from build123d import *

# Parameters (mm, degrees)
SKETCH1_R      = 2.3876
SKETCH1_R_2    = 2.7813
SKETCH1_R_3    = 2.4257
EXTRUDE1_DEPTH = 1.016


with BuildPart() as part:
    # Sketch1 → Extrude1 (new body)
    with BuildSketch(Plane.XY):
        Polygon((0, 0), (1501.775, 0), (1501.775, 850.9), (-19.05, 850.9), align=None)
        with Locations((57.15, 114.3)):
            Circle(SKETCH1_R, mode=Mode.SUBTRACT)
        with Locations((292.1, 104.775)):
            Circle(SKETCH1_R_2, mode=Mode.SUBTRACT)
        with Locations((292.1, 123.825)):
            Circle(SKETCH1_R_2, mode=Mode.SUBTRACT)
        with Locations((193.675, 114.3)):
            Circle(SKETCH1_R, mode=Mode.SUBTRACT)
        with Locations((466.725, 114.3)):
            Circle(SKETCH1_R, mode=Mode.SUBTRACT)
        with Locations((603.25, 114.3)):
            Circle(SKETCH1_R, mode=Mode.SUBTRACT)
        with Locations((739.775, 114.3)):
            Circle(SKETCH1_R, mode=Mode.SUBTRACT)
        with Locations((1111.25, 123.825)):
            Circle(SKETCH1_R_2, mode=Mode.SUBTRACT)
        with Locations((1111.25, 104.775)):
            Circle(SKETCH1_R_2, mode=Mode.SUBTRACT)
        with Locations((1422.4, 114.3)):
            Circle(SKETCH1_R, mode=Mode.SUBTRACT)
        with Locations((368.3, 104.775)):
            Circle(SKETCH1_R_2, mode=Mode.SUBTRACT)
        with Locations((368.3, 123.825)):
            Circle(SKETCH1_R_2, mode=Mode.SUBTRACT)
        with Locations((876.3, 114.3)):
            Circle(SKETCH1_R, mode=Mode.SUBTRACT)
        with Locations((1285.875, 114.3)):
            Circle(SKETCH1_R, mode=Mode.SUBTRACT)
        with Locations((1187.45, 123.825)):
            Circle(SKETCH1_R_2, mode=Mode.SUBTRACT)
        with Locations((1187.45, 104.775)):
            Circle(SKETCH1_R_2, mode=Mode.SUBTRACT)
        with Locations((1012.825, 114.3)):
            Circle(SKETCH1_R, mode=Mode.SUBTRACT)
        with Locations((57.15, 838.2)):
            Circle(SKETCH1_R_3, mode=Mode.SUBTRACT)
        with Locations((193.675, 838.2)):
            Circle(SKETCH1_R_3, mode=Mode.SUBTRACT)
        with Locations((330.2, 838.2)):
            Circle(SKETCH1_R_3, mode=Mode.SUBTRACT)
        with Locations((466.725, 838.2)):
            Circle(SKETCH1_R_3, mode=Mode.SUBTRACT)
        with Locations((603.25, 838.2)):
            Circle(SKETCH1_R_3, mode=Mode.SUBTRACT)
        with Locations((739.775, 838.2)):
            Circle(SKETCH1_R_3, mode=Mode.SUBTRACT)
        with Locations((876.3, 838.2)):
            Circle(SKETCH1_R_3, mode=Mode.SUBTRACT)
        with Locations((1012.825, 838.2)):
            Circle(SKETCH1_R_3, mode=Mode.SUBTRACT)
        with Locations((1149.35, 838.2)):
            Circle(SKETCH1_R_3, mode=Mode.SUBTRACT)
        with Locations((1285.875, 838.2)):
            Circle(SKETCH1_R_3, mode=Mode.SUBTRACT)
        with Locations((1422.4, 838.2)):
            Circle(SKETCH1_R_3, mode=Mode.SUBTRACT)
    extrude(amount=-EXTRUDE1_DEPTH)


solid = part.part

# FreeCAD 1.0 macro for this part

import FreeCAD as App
import Part
import Sketcher
from FreeCAD import Vector
Q = App.Units.Quantity

doc = App.newDocument("Part")
body = doc.addObject("PartDesign::Body", "Body")

sketch1 = body.newObject("Sketcher::SketchObject", "Sketch")
sketch1.AttachmentSupport = (doc.getObject("XY_Plane"), [""])
sketch1.MapMode = "FlatFace"
sketch1.addGeometry([
    Part.LineSegment(Vector(0, 0, 0), Vector(1501.775, 0, 0)),
    Part.LineSegment(Vector(1501.775, 0, 0), Vector(1501.775, 850.9, 0)),
    Part.LineSegment(Vector(1501.775, 850.9, 0), Vector(-19.05, 850.9, 0)),
    Part.LineSegment(Vector(-19.05, 850.9, 0), Vector(0, 0, 0)),
    Part.Circle(Vector(57.15, 114.3, 0), Vector(0, 0, 1), 2.3876),
    Part.Circle(Vector(193.675, 114.3, 0), Vector(0, 0, 1), 2.3876),
    Part.Circle(Vector(292.1, 104.775, 0), Vector(0, 0, 1), 2.7813),
    Part.Circle(Vector(292.1, 123.825, 0), Vector(0, 0, 1), 2.7813),
    Part.Circle(Vector(368.3, 104.775, 0), Vector(0, 0, 1), 2.7813),
    Part.Circle(Vector(368.3, 123.825, 0), Vector(0, 0, 1), 2.7813),
    Part.Circle(Vector(466.725, 114.3, 0), Vector(0, 0, 1), 2.3876),
    Part.Circle(Vector(603.25, 114.3, 0), Vector(0, 0, 1), 2.3876),
    Part.Circle(Vector(739.775, 114.3, 0), Vector(0, 0, 1), 2.3876),
    Part.Circle(Vector(876.3, 114.3, 0), Vector(0, 0, 1), 2.3876),
    Part.Circle(Vector(1012.825, 114.3, 0), Vector(0, 0, 1), 2.3876),
    Part.Circle(Vector(1111.25, 104.775, 0), Vector(0, 0, 1), 2.7813),
    Part.Circle(Vector(1111.25, 123.825, 0), Vector(0, 0, 1), 2.7813),
    Part.Circle(Vector(1187.45, 104.775, 0), Vector(0, 0, 1), 2.7813),
    Part.Circle(Vector(1187.45, 123.825, 0), Vector(0, 0, 1), 2.7813),
    Part.Circle(Vector(1285.875, 114.3, 0), Vector(0, 0, 1), 2.3876),
    Part.Circle(Vector(1422.4, 114.3, 0), Vector(0, 0, 1), 2.3876),
    Part.Circle(Vector(57.15, 838.2, 0), Vector(0, 0, 1), 2.4257),
    Part.Circle(Vector(193.675, 838.2, 0), Vector(0, 0, 1), 2.4257),
    Part.Circle(Vector(330.2, 838.2, 0), Vector(0, 0, 1), 2.4257),
    Part.Circle(Vector(466.725, 838.2, 0), Vector(0, 0, 1), 2.4257),
    Part.Circle(Vector(603.25, 838.2, 0), Vector(0, 0, 1), 2.4257),
    Part.Circle(Vector(739.775, 838.2, 0), Vector(0, 0, 1), 2.4257),
    Part.Circle(Vector(876.3, 838.2, 0), Vector(0, 0, 1), 2.4257),
    Part.Circle(Vector(1012.825, 838.2, 0), Vector(0, 0, 1), 2.4257),
    Part.Circle(Vector(1149.35, 838.2, 0), Vector(0, 0, 1), 2.4257),
    Part.Circle(Vector(1285.875, 838.2, 0), Vector(0, 0, 1), 2.4257),
    Part.Circle(Vector(1422.4, 838.2, 0), Vector(0, 0, 1), 2.4257),
], False)
sketch1.addConstraint([
    Sketcher.Constraint("Coincident", 0, 2, 1, 1),
    Sketcher.Constraint("Coincident", 1, 2, 2, 1),
    Sketcher.Constraint("Coincident", 2, 2, 3, 1),
    Sketcher.Constraint("Coincident", 3, 2, 0, 1),
    Sketcher.Constraint("Horizontal", 0),
    Sketcher.Constraint("Vertical", 1),
    Sketcher.Constraint("Horizontal", 2),
    Sketcher.Constraint("Coincident", 3, 2, -1, 1),
    Sketcher.Constraint("Equal", 4, 5),
    Sketcher.Constraint("Equal", 6, 7),
    Sketcher.Constraint("Equal", 7, 8),
    Sketcher.Constraint("Equal", 8, 9),
    Sketcher.Constraint("Equal", 5, 10),
    Sketcher.Constraint("Equal", 10, 11),
    Sketcher.Constraint("Equal", 11, 12),
    Sketcher.Constraint("Equal", 12, 13),
    Sketcher.Constraint("Equal", 13, 14),
    Sketcher.Constraint("Equal", 9, 15),
    Sketcher.Constraint("Equal", 15, 16),
    Sketcher.Constraint("Equal", 16, 17),
    Sketcher.Constraint("Equal", 17, 18),
    Sketcher.Constraint("Equal", 14, 19),
    Sketcher.Constraint("Equal", 19, 20),
    Sketcher.Constraint("Equal", 21, 22),
    Sketcher.Constraint("Equal", 22, 23),
    Sketcher.Constraint("Equal", 23, 24),
    Sketcher.Constraint("Equal", 24, 25),
    Sketcher.Constraint("Equal", 25, 26),
    Sketcher.Constraint("Equal", 26, 27),
    Sketcher.Constraint("Equal", 27, 28),
    Sketcher.Constraint("Equal", 28, 29),
    Sketcher.Constraint("Equal", 29, 30),
    Sketcher.Constraint("Equal", 30, 31),
    Sketcher.Constraint("Horizontal", 4, 3, 5, 3),
    Sketcher.Constraint("Horizontal", 6, 3, 8, 3),
    Sketcher.Constraint("Horizontal", 7, 3, 9, 3),
    Sketcher.Constraint("Horizontal", 5, 3, 10, 3),
    Sketcher.Constraint("Horizontal", 10, 3, 11, 3),
    Sketcher.Constraint("Horizontal", 11, 3, 12, 3),
    Sketcher.Constraint("Horizontal", 12, 3, 13, 3),
    Sketcher.Constraint("Horizontal", 13, 3, 14, 3),
    Sketcher.Constraint("Horizontal", 8, 3, 15, 3),
    Sketcher.Constraint("Horizontal", 9, 3, 16, 3),
    Sketcher.Constraint("Horizontal", 15, 3, 17, 3),
    Sketcher.Constraint("Horizontal", 16, 3, 18, 3),
    Sketcher.Constraint("Horizontal", 14, 3, 19, 3),
    Sketcher.Constraint("Horizontal", 19, 3, 20, 3),
    Sketcher.Constraint("Horizontal", 21, 3, 22, 3),
    Sketcher.Constraint("Horizontal", 22, 3, 23, 3),
    Sketcher.Constraint("Horizontal", 23, 3, 24, 3),
    Sketcher.Constraint("Horizontal", 24, 3, 25, 3),
    Sketcher.Constraint("Horizontal", 25, 3, 26, 3),
    Sketcher.Constraint("Horizontal", 26, 3, 27, 3),
    Sketcher.Constraint("Horizontal", 27, 3, 28, 3),
    Sketcher.Constraint("Horizontal", 28, 3, 29, 3),
    Sketcher.Constraint("Horizontal", 29, 3, 30, 3),
    Sketcher.Constraint("Horizontal", 30, 3, 31, 3),
    Sketcher.Constraint("Vertical", 6, 3, 7, 3),
    Sketcher.Constraint("Vertical", 8, 3, 9, 3),
    Sketcher.Constraint("Vertical", 15, 3, 16, 3),
    Sketcher.Constraint("Vertical", 17, 3, 18, 3),
    Sketcher.Constraint("Vertical", 4, 3, 21, 3),
    Sketcher.Constraint("Vertical", 5, 3, 22, 3),
    Sketcher.Constraint("Vertical", 10, 3, 24, 3),
    Sketcher.Constraint("Vertical", 11, 3, 25, 3),
    Sketcher.Constraint("Vertical", 12, 3, 26, 3),
    Sketcher.Constraint("Vertical", 13, 3, 27, 3),
    Sketcher.Constraint("Vertical", 14, 3, 28, 3),
    Sketcher.Constraint("Vertical", 19, 3, 30, 3),
    Sketcher.Constraint("Vertical", 20, 3, 31, 3),
    Sketcher.Constraint("Diameter", 4, Q("0.188 in")),
    Sketcher.Constraint("Diameter", 6, Q("0.219 in")),
    Sketcher.Constraint("Diameter", 21, Q("0.191 in")),
    Sketcher.Constraint("DistanceY", 1, 1, 1, 2, Q("33.5 in")),
    Sketcher.Constraint("DistanceX", -1, 1, 20, 3, Q("56 in")),
    Sketcher.Constraint("DistanceY", -1, 1, 21, 3, Q("33 in")),
    Sketcher.Constraint("DistanceX", -1, 1, 23, 3, Q("13 in")),
    Sketcher.Constraint("DistanceX", 6, 3, 8, 3, Q("3 in")),
    Sketcher.Constraint("DistanceX", 8, 3, 13, 3, Q("20 in")),
    Sketcher.Constraint("DistanceX", 11, 3, 15, 3, Q("20 in")),
    Sketcher.Constraint("DistanceX", 15, 3, 17, 3, Q("3 in")),
    Sketcher.Constraint("DistanceX", 2, 2, 21, 3, Q("3 in")),
    Sketcher.Constraint("DistanceY", -1, 1, 4, 3, Q("4.5 in")),
    Sketcher.Constraint("DistanceX", -1, 1, 6, 3, Q("11.5 in")),
    Sketcher.Constraint("DistanceX", 10, 3, 14, 3, Q("21.5 in")),
    Sketcher.Constraint("DistanceX", 21, 3, 25, 3, Q("21.5 in")),
    Sketcher.Constraint("DistanceX", 22, 3, 26, 3, Q("21.5 in")),
    Sketcher.Constraint("DistanceX", 25, 3, 29, 3, Q("21.5 in")),
    Sketcher.Constraint("DistanceX", 26, 3, 30, 3, Q("21.5 in")),
    Sketcher.Constraint("DistanceX", 19, 3, 0, 2, Q("8.5 in")),
    Sketcher.Constraint("DistanceX", 0, 1, 0, 2, Q("59.125 in")),
    Sketcher.Constraint("DistanceX", 2, 2, 2, 1, Q("59.875 in")),
    Sketcher.Constraint("DistanceY", 6, 3, 7, 3, Q("0.75 in")),
    Sketcher.Constraint("DistanceX", 5, 3, 10, 3, Q("10.75 in")),
    Sketcher.Constraint("DistanceY", -1, 1, 6, 3, Q("4.125 in")),
])
pad1 = body.newObject("PartDesign::Pad", "Pad")
pad1.Profile = sketch1
pad1.Length = Q("0.04 in")
pad1.Reversed = True

doc.recompute()
